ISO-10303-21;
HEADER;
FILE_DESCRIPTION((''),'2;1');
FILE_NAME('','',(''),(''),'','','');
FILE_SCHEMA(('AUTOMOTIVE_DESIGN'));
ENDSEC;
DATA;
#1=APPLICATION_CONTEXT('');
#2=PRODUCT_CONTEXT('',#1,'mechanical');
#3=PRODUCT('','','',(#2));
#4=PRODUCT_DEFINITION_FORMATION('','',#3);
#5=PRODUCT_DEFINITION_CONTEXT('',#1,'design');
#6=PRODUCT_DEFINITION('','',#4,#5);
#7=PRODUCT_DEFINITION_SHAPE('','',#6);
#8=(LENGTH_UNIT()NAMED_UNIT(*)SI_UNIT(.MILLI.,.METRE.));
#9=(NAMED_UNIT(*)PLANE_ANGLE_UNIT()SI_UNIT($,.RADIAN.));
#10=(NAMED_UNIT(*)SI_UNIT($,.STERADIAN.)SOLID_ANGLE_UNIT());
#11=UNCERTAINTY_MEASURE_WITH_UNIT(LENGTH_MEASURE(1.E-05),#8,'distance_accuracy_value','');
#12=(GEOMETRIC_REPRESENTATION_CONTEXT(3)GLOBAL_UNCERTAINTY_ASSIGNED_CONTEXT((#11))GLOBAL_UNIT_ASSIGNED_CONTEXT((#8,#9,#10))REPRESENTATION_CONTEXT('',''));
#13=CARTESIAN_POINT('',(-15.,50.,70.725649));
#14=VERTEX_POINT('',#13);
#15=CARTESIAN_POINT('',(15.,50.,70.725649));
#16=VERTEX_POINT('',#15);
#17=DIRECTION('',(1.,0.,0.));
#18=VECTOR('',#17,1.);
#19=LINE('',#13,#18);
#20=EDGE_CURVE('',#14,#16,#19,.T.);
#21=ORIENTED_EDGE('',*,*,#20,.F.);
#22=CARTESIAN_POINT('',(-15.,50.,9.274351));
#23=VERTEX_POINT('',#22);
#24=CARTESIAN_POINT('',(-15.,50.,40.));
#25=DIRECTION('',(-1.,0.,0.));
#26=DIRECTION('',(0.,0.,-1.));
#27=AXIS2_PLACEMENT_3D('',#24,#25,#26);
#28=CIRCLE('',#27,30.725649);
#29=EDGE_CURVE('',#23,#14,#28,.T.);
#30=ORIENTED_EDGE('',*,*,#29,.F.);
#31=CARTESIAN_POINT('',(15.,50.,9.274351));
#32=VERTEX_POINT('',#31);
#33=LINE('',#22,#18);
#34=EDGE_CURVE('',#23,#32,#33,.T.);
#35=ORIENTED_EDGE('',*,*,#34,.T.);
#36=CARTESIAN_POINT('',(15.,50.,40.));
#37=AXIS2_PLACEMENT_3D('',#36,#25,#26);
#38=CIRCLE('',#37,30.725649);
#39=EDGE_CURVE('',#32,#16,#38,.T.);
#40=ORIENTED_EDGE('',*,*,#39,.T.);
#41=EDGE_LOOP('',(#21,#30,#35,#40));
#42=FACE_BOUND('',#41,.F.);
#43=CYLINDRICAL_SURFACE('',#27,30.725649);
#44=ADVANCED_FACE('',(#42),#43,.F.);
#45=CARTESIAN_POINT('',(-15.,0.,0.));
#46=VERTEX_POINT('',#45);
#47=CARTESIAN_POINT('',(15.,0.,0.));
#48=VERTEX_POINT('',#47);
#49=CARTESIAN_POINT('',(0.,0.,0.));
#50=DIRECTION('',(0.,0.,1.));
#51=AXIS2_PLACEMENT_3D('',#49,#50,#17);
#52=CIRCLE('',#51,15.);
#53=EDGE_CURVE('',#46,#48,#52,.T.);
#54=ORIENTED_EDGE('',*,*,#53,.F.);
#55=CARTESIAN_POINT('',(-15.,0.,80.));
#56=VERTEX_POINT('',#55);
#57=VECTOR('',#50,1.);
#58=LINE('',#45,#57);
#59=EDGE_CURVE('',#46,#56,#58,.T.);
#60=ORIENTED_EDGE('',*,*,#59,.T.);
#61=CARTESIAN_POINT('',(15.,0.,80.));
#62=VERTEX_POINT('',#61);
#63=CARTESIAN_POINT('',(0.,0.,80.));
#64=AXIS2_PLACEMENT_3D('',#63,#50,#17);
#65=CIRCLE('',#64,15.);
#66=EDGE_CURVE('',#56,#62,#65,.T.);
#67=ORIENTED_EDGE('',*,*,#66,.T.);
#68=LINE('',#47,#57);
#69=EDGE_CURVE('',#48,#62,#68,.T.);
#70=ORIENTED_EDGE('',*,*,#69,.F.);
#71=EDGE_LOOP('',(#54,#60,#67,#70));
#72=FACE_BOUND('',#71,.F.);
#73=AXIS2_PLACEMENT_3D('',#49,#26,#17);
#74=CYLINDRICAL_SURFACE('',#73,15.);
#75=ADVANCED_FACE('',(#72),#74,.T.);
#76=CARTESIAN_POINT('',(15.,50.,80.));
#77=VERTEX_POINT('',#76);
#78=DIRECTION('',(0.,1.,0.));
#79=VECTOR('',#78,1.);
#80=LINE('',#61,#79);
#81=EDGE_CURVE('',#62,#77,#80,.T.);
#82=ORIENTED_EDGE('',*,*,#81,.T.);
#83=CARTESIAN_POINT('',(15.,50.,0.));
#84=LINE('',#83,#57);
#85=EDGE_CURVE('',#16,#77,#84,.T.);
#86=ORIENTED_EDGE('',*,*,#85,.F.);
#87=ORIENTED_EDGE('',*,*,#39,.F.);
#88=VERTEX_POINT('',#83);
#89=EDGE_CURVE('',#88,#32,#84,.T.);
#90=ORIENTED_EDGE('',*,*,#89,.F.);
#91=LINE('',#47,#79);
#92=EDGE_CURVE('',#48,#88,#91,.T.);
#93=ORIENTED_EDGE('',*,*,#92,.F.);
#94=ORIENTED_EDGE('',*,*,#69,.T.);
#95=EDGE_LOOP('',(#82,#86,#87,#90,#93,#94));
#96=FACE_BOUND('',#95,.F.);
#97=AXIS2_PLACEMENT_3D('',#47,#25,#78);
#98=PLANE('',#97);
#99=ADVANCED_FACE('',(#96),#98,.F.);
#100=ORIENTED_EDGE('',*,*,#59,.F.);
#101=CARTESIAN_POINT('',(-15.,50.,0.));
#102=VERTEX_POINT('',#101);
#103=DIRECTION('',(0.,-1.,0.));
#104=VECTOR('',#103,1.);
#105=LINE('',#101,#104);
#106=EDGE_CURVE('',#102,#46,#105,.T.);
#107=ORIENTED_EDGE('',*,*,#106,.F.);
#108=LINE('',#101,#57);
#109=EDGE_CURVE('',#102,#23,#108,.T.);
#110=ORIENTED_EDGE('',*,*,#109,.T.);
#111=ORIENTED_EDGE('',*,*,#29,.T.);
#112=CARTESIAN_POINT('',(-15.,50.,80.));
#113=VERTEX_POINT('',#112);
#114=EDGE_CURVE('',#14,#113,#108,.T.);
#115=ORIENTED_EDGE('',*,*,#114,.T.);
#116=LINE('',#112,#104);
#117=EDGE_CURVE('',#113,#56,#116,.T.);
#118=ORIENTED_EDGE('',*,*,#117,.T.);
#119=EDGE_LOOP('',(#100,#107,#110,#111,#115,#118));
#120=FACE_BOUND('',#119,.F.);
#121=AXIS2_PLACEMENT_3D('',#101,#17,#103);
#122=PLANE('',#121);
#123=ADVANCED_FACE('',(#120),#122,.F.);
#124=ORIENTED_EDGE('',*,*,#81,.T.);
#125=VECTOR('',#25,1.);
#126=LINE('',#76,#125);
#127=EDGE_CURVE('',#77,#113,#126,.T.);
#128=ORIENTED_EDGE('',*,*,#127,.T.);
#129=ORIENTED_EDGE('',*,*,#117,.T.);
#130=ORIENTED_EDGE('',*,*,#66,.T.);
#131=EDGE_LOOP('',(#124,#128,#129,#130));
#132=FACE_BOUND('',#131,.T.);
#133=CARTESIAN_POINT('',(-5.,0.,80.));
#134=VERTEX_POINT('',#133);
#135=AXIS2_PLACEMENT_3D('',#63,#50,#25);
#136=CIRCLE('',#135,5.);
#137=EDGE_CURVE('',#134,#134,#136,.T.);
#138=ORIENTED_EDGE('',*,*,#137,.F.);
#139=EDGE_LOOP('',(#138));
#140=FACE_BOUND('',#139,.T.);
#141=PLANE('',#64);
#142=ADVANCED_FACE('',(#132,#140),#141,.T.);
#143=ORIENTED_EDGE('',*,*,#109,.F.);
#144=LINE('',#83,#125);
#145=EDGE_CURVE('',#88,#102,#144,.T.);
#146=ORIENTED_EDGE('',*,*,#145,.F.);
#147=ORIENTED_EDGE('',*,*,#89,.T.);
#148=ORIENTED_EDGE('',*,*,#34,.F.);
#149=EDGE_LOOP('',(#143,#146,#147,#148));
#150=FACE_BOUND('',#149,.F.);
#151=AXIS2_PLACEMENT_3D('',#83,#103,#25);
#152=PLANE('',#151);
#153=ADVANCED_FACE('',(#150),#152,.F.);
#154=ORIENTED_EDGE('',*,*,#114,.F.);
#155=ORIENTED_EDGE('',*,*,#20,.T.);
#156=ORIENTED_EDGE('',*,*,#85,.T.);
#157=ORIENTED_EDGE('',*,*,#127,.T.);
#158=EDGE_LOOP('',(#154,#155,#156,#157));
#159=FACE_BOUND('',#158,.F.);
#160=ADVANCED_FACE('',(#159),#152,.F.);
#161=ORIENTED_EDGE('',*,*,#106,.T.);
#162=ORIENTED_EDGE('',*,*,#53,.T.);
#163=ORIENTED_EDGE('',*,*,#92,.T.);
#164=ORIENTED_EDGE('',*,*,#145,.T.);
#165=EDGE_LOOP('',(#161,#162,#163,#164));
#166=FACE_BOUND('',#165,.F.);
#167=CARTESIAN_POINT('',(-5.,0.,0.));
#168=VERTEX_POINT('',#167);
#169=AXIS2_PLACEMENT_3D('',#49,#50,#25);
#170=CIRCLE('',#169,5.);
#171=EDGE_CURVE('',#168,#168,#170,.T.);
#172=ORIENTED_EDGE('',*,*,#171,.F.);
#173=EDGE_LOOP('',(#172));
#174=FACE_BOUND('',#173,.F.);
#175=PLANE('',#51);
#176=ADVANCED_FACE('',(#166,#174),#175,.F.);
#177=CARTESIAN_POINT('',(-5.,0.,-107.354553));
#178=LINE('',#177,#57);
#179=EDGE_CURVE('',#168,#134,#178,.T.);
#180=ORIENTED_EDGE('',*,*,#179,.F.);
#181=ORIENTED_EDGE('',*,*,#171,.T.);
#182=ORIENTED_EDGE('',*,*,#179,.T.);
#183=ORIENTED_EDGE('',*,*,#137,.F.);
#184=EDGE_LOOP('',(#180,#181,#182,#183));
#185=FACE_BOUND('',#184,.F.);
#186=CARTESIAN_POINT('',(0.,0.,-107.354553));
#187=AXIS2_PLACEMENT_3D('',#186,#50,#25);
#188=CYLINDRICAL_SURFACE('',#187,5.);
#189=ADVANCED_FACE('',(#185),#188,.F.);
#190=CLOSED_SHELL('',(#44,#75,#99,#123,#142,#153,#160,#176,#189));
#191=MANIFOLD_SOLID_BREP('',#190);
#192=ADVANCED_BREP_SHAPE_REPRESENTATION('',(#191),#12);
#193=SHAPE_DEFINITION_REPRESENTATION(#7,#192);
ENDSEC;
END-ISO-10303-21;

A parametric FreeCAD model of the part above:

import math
import FreeCAD as App
import Part
import Sketcher
from FreeCAD import Vector
Q = App.Units.Quantity

doc = App.newDocument("Part")
body = doc.addObject("PartDesign::Body", "Body")

# Sketch on XY plane
sketch1 = body.newObject("Sketcher::SketchObject", "Sketch")
sketch1.AttachmentSupport = (doc.getObject("XY_Plane"), [""])
sketch1.MapMode = "FlatFace"
sketch1.addGeometry([
    Part.ArcOfCircle(Part.Circle(Vector(0, 0, 0), Vector(0, 0, 1), 15), math.radians(180), math.radians(360)),
    Part.LineSegment(Vector(15, 0, 0), Vector(15, 50, 0)),
    Part.LineSegment(Vector(15, 50, 0), Vector(-15, 50, 0)),
    Part.LineSegment(Vector(-15, 50, 0), Vector(-15, 0, 0)),
], False)
sketch1.addConstraint([
    Sketcher.Constraint("Tangent", 0, 2, 1, 1),
    Sketcher.Constraint("Coincident", 1, 2, 2, 1),
    Sketcher.Constraint("Coincident", 2, 2, 3, 1),
    Sketcher.Constraint("Tangent", 3, 2, 0, 1),
    Sketcher.Constraint("Vertical", 1),
    Sketcher.Constraint("Horizontal", 2),
    Sketcher.Constraint("Vertical", 3),
    Sketcher.Constraint("Coincident", 0, 3, -1, 1),
    Sketcher.Constraint("Radius", 0, Q("15 mm")),
    Sketcher.Constraint("DistanceY", 1, 1, 1, 2, Q("50 mm")),
])
pad1 = body.newObject("PartDesign::Pad", "Pad")
pad1.Profile = sketch1
pad1.Length = 80

# Sketch on YZ plane
sketch2 = body.newObject("Sketcher::SketchObject", "Sketch001")
sketch2.AttachmentSupport = (doc.getObject("YZ_Plane"), [""])
sketch2.MapMode = "FlatFace"
sketch2.AttachmentOffset = App.Placement(Vector(0, 0, -15), App.Rotation())
sketch2.addGeometry([
    Part.ArcOfCircle(Part.Circle(Vector(50, 40, 0), Vector(0, 0, 1), 31), math.radians(90), math.radians(270)),
    Part.LineSegment(Vector(50, 71, 0), Vector(50, 9, 0)),
], False)
sketch2.addConstraint([
    Sketcher.Constraint("Coincident", 0, 1, 1, 1),
    Sketcher.Constraint("Coincident", 1, 2, 0, 2),
    Sketcher.Constraint("Vertical", 1),
    Sketcher.Constraint("DistanceX", -1, 1, 0, 3, Q("50 mm")),
    Sketcher.Constraint("DistanceY", -1, 1, 0, 3, Q("40 mm")),
    Sketcher.Constraint("DistanceX", -1, 1, 0, 1, Q("50 mm")),
    Sketcher.Constraint("Radius", 0, Q("30.725649 mm")),
])
pocket1 = body.newObject("PartDesign::Pocket", "Pocket")
pocket1.Profile = sketch2
pocket1.Length = 55
pocket1.Reversed = True

# Sketch on XY plane
sketch3 = body.newObject("Sketcher::SketchObject", "Sketch002")
sketch3.AttachmentSupport = (doc.getObject("XY_Plane"), [""])
sketch3.MapMode = "FlatFace"
sketch3.addGeometry(Part.Circle(Vector(0, 0, 0), Vector(0, 0, 1), 5), False)
sketch3.addConstraint([
    Sketcher.Constraint("Coincident", 0, 3, -1, 1),
    Sketcher.Constraint("Diameter", 0, Q("10 mm")),
])
doc.recompute()
hole = body.newObject("PartDesign::Hole", "Hole")
hole.Profile = sketch3
hole.ThreadType = "None"
hole.Diameter = 10
hole.DepthType = "ThroughAll"
hole.Reversed = True

doc.recompute()
